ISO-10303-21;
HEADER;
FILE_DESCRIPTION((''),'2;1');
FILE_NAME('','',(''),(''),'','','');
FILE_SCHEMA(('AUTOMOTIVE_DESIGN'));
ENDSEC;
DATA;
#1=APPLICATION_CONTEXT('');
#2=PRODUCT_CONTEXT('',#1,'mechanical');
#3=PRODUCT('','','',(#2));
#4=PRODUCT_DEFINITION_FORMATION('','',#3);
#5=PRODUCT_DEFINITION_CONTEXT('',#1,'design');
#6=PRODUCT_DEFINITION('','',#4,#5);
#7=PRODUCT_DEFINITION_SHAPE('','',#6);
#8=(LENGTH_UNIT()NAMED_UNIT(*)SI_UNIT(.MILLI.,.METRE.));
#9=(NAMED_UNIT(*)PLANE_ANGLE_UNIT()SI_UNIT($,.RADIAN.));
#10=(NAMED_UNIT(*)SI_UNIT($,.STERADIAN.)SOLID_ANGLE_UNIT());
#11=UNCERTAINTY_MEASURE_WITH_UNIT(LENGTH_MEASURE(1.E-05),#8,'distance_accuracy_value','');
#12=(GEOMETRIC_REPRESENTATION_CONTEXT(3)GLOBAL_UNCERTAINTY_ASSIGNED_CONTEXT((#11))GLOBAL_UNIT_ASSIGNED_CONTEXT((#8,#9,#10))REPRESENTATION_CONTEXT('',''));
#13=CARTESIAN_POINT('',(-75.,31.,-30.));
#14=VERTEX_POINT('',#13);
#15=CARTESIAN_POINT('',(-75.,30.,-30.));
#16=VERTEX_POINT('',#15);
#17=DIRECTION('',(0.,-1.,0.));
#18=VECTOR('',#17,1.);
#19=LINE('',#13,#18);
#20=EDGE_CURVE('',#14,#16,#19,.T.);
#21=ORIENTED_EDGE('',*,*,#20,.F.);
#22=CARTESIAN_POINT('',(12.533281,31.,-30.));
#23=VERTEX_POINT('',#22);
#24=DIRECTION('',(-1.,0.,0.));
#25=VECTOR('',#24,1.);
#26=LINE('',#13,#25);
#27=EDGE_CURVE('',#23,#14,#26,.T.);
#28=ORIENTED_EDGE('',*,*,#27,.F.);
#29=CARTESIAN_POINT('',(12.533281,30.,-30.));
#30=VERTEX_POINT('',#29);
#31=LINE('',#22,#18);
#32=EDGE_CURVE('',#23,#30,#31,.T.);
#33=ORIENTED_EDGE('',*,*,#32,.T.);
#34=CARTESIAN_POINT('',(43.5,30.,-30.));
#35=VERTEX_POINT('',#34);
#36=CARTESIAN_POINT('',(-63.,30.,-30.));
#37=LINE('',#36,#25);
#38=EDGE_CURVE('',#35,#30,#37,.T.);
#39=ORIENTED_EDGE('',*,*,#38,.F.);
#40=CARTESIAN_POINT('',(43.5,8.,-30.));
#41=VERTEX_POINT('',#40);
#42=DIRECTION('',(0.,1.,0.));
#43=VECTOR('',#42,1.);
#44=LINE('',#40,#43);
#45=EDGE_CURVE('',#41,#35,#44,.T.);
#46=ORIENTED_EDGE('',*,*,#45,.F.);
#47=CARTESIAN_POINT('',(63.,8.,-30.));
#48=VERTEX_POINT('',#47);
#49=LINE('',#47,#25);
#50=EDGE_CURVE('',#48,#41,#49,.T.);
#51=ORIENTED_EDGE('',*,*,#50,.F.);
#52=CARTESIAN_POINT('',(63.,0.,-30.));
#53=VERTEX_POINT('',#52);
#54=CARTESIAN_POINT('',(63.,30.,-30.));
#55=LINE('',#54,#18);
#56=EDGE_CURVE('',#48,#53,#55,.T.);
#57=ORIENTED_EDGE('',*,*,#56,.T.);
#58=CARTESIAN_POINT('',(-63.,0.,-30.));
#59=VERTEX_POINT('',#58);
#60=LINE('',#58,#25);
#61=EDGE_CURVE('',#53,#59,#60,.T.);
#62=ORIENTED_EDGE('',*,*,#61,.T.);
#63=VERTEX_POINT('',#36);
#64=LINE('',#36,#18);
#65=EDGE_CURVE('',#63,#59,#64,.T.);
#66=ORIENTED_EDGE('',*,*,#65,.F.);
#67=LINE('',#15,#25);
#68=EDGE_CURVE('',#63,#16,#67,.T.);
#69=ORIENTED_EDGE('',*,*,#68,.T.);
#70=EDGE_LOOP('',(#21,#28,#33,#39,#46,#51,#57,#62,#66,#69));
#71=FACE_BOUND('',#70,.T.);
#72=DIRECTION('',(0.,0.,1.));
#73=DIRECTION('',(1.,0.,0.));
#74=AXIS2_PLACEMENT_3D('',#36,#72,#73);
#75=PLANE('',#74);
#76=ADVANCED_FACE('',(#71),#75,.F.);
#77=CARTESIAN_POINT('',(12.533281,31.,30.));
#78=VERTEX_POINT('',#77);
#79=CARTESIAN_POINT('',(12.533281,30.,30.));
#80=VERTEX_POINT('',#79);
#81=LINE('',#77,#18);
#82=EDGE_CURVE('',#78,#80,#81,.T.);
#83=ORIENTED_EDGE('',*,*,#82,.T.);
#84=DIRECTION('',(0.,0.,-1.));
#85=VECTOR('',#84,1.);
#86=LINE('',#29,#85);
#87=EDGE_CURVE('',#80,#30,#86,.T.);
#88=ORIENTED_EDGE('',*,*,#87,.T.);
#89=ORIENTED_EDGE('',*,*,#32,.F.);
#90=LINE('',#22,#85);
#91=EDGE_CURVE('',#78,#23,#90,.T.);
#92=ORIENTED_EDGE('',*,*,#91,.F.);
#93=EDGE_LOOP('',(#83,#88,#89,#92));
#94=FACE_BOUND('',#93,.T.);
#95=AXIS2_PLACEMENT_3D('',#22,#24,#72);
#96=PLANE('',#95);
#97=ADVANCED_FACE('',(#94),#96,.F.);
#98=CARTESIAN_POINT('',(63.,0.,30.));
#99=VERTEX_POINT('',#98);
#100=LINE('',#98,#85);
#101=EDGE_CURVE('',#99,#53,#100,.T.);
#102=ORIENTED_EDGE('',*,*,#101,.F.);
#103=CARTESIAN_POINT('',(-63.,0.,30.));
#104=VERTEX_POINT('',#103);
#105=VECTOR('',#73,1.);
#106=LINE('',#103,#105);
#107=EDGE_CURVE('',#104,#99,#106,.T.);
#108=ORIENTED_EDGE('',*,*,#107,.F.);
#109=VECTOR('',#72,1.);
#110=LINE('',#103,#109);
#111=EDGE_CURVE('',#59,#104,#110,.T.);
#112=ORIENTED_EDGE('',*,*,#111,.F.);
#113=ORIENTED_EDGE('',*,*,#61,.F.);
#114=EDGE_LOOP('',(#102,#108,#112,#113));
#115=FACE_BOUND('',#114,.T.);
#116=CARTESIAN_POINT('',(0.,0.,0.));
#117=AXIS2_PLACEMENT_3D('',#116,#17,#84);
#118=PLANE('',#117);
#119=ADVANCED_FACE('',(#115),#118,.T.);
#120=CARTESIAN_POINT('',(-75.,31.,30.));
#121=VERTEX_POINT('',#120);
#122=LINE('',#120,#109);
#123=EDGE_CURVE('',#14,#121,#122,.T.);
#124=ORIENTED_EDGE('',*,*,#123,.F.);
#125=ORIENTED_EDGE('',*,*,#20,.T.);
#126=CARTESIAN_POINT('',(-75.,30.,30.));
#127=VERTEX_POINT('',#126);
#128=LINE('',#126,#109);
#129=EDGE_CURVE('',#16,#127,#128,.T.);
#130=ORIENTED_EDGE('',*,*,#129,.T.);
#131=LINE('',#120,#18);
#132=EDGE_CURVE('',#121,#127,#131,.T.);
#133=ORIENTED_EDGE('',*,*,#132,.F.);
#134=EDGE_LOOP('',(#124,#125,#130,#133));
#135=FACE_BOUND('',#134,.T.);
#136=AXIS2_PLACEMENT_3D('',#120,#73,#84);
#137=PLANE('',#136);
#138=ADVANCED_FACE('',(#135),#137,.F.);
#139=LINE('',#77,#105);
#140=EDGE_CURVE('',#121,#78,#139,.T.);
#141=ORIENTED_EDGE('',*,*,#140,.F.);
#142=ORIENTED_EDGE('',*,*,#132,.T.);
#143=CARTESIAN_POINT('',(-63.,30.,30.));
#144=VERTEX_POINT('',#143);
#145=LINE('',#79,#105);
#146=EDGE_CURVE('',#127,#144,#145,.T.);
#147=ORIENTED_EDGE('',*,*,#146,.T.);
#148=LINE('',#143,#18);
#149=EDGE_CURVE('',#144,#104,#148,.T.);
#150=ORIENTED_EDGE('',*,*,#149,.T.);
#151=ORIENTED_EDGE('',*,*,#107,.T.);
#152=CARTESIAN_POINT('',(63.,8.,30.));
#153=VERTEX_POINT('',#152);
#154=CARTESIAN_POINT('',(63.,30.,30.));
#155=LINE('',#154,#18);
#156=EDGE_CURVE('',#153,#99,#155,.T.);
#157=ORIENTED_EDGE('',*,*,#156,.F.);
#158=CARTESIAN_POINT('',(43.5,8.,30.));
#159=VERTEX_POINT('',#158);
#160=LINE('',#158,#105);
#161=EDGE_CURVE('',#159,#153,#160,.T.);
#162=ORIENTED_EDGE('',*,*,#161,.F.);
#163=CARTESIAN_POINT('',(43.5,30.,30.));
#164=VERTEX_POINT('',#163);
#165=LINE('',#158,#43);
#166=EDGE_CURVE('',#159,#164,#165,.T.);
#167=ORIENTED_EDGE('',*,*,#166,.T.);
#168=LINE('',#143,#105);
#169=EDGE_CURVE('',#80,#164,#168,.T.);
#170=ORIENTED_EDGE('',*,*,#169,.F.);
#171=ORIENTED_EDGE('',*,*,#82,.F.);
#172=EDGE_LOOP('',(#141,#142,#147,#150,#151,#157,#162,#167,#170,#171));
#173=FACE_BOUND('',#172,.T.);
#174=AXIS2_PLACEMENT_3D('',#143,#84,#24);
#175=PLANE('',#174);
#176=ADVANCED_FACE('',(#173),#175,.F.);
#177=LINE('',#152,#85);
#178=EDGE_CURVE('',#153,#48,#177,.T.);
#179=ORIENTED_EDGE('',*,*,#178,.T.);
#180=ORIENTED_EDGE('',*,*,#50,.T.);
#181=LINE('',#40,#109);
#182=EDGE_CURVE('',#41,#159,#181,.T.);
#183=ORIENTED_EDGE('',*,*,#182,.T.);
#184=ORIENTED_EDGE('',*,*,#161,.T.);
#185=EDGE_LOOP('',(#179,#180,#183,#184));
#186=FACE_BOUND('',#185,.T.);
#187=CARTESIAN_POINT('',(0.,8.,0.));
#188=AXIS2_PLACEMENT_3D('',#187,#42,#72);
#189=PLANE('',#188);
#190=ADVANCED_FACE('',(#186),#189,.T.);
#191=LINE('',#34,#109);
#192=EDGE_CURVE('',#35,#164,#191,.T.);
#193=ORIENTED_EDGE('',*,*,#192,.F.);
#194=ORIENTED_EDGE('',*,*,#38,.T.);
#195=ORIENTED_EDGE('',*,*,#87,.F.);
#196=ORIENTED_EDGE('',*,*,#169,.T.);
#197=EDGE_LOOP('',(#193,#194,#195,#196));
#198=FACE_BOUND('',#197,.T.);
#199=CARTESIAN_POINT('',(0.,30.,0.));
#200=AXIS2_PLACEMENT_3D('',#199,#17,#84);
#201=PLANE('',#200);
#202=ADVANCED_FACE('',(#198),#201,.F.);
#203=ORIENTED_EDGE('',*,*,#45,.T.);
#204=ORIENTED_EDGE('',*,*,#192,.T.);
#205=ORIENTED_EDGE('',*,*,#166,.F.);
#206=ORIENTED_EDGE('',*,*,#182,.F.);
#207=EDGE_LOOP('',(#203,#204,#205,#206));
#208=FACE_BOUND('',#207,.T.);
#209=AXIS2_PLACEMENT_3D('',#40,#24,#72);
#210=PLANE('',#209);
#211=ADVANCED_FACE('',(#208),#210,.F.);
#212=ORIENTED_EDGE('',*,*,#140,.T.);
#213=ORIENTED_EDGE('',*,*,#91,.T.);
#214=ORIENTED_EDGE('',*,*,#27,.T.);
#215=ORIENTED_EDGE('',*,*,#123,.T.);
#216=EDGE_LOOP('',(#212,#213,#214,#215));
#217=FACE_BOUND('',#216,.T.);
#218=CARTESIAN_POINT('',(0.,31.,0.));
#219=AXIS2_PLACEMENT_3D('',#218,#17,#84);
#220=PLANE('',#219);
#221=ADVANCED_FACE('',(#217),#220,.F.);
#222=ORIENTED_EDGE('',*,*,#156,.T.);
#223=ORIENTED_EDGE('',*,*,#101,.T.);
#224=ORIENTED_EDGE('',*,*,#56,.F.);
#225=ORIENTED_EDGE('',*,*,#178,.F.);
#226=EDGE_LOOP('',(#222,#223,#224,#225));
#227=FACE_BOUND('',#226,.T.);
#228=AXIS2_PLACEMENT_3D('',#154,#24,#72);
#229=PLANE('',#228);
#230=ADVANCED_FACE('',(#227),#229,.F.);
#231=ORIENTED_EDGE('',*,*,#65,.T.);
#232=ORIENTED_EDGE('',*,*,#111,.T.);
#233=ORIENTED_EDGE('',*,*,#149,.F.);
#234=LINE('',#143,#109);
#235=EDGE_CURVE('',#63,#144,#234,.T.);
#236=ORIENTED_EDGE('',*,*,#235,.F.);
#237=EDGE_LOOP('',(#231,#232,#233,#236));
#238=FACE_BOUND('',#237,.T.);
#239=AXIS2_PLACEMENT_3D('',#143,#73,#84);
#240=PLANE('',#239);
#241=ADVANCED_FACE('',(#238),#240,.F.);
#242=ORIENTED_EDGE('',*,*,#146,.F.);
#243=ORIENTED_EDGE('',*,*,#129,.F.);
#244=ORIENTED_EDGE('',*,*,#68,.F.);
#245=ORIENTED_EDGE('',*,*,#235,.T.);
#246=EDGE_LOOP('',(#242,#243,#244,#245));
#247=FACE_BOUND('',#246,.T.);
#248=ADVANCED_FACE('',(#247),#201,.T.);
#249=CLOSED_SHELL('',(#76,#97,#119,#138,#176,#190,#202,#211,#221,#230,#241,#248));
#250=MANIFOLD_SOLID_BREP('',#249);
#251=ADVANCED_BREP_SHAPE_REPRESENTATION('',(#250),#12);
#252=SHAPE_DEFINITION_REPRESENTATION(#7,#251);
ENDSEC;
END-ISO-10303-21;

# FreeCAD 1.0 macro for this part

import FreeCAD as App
import Part
import Sketcher
Q = App.Units.Quantity


def add_polygon(sketch, points):
    """Adds a closed chain of lines whose ends are joined by coincident constraints."""
    first, n = sketch.GeometryCount, len(points)
    for a, b in zip(points, points[1:] + points[:1]):
        sketch.addGeometry(Part.LineSegment(App.Vector(*a, 0), App.Vector(*b, 0)), False)
    for i in range(n):
        sketch.addConstraint(Sketcher.Constraint("Coincident", first + i, 2, first + (i + 1) % n, 1))

doc = App.newDocument("Part")
body = doc.addObject("PartDesign::Body", "Body")

# Sketch on XZ plane
sketch1 = body.newObject("Sketcher::SketchObject", "Sketch")
sketch1.AttachmentSupport = (doc.getObject("XZ_Plane"), [""])
sketch1.MapMode = "FlatFace"
add_polygon(sketch1, [(-63, -30), (-63, 30), (63, 30), (63, -30)])  # lines 0-3
sketch1.addConstraint([
    Sketcher.Constraint("Vertical", 0),
    Sketcher.Constraint("Horizontal", 1),
    Sketcher.Constraint("Vertical", 2),
    Sketcher.Constraint("Horizontal", 3),
    Sketcher.Constraint("Symmetric", 0, 2, 2, 2, -1, 1),
    Sketcher.Constraint("DistanceX", 1, 1, 1, 2, Q("126 mm")),
    Sketcher.Constraint("DistanceY", 0, 1, 0, 2, Q("60 mm")),
])
pad1 = body.newObject("PartDesign::Pad", "Pad")
pad1.Profile = sketch1
pad1.Length = 30
pad1.Reversed = True

# Sketch on XZ plane
sketch2 = body.newObject("Sketcher::SketchObject", "Sketch001")
sketch2.AttachmentSupport = (doc.getObject("XZ_Plane"), [""])
sketch2.MapMode = "FlatFace"
sketch2.AttachmentOffset = App.Placement(App.Vector(0, 0, -30), App.Rotation())
add_polygon(sketch2, [(44, -30), (44, 30), (63, 30), (63, -30)])  # lines 0-3
sketch2.addConstraint([
    Sketcher.Constraint("Vertical", 0),
    Sketcher.Constraint("Horizontal", 1),
    Sketcher.Constraint("Vertical", 2),
    Sketcher.Constraint("Horizontal", 3),
    Sketcher.Constraint("DistanceY", 0, 1, 0, 2, Q("60 mm")),
    Sketcher.Constraint("DistanceX", 1, 1, 1, 2, Q("19.5 mm")),
    Sketcher.Constraint("DistanceY", -1, 1, 0, 2, Q("30 mm")),
    Sketcher.Constraint("DistanceX", -1, 1, 1, 2, Q("63 mm")),
])
pocket1 = body.newObject("PartDesign::Pocket", "Pocket")
pocket1.Profile = sketch2
pocket1.Length = 22
pocket1.Reversed = True

# Sketch on XZ plane
sketch3 = body.newObject("Sketcher::SketchObject", "Sketch002")
sketch3.AttachmentSupport = (doc.getObject("XZ_Plane"), [""])
sketch3.MapMode = "FlatFace"
sketch3.AttachmentOffset = App.Placement(App.Vector(0, 0, -30), App.Rotation())
add_polygon(sketch3, [(-75, -30), (-75, 30), (13, 30), (13, -30)])  # lines 0-3
sketch3.addConstraint([
    Sketcher.Constraint("Vertical", 0),
    Sketcher.Constraint("Horizontal", 1),
    Sketcher.Constraint("Vertical", 2),
    Sketcher.Constraint("Horizontal", 3),
    Sketcher.Constraint("DistanceY", 0, 1, 0, 2, Q("60 mm")),
    Sketcher.Constraint("DistanceX", 0, 2, -1, 1, Q("75 mm")),
    Sketcher.Constraint("DistanceY", -1, 1, 0, 2, Q("30 mm")),
    Sketcher.Constraint("DistanceX", 1, 1, 1, 2, Q("87.533281 mm")),
])
pad2 = body.newObject("PartDesign::Pad", "Pad001")
pad2.Profile = sketch3
pad2.Length = 1
pad2.Reversed = True

doc.recompute()
